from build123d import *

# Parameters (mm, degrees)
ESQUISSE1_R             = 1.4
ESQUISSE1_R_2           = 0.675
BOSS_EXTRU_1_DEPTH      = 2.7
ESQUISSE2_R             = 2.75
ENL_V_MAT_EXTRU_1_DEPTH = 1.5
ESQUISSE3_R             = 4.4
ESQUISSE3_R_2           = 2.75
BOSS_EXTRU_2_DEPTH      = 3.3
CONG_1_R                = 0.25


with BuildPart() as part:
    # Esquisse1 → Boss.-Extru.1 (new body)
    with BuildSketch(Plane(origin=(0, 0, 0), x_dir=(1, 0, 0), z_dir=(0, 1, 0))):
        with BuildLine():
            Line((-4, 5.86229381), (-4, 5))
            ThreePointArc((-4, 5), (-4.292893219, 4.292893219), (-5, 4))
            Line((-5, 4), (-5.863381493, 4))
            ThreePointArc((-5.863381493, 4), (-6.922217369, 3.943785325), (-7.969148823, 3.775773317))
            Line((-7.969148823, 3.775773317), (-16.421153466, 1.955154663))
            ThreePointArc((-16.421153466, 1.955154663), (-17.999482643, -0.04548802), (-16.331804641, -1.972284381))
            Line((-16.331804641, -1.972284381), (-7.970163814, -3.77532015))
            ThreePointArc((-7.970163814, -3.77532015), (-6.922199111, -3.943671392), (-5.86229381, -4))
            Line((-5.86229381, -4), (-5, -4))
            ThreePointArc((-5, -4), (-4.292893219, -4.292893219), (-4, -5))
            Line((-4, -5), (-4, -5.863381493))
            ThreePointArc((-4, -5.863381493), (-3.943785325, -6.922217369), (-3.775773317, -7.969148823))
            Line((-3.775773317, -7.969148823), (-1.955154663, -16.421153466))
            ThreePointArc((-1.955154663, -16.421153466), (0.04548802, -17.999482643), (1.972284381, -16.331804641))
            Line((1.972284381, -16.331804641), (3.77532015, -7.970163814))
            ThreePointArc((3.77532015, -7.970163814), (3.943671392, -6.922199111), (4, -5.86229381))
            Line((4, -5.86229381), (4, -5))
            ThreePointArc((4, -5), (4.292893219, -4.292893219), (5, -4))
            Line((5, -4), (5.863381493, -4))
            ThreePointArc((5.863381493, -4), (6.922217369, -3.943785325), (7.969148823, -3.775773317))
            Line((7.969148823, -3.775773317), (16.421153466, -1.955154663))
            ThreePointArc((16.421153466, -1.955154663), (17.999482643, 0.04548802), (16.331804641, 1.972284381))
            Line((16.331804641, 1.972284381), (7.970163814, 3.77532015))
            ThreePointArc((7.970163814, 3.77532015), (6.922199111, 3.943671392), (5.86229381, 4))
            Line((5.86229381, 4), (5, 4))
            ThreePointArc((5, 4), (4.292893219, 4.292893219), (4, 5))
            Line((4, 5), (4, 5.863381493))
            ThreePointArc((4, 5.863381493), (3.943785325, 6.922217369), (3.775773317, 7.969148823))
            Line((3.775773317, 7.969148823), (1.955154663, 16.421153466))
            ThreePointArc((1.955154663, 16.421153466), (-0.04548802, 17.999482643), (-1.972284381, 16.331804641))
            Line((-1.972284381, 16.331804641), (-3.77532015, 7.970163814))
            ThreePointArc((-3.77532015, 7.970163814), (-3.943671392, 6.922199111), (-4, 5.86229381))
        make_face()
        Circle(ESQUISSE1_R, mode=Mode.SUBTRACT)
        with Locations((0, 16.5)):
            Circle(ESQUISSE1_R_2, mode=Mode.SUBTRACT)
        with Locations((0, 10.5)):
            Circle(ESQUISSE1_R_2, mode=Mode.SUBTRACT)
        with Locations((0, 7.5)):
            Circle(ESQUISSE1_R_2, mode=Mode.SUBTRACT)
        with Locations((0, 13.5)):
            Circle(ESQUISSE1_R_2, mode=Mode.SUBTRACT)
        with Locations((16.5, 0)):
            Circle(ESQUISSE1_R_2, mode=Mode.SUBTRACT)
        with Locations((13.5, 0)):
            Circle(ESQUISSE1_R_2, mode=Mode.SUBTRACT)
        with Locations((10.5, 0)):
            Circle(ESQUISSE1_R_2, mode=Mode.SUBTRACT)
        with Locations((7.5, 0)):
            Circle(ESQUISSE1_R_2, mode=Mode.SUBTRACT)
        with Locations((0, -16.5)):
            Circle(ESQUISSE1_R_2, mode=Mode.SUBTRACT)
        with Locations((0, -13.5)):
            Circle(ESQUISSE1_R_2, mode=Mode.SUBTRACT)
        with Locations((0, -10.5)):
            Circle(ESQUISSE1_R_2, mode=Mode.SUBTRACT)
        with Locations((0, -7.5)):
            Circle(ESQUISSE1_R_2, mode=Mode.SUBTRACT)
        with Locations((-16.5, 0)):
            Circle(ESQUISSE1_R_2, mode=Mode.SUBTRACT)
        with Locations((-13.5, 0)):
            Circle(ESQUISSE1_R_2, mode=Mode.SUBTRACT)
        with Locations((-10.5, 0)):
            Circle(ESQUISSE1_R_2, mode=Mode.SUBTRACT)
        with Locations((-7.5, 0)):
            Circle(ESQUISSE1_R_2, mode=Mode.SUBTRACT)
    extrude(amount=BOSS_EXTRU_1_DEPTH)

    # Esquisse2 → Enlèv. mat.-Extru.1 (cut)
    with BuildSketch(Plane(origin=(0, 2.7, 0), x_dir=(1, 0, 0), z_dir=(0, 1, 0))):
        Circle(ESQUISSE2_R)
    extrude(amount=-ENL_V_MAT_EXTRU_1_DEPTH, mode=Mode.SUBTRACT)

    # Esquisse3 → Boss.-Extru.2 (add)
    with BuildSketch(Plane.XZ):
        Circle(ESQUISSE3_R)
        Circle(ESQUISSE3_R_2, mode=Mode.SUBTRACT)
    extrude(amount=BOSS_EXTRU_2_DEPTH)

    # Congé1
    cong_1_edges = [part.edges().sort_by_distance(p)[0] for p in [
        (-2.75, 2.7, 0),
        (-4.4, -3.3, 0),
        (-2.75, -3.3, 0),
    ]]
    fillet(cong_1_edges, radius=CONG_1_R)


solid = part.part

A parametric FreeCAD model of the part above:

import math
import FreeCAD as App
import Part
import Sketcher

V = App.Vector


def edges_at(feature, points):
    """Names of the edges that pass closest to the given points."""
    edges = feature.Shape.Edges
    near = lambda p: min(range(len(edges)), key=lambda i: edges[i].distToShape(Part.Vertex(*p))[0])
    return sorted({f"Edge{near(p) + 1}" for p in points})

doc = App.newDocument("Part")
body = doc.addObject("PartDesign::Body", "Body")

sketch1 = doc.addObject("Sketcher::SketchObject", "Sketch")
body.addObject(sketch1)
sketch1.AttachmentSupport = (doc.XZ_Plane, [""])
sketch1.MapMode = "FlatFace"
sketch1.addGeometry([
    Part.LineSegment(V(-4, -5.862294, 0), V(-4, -5, 0)),
    Part.ArcOfCircle(Part.Circle(V(-5, -5, 0), V(0, 0, 1), 1), math.radians(0), math.radians(90)),
    Part.LineSegment(V(-5, -4, 0), V(-5.863381, -4, 0)),
    Part.ArcOfCircle(Part.Circle(V(-5.863381, 6, 0), V(0, 0, 1), 10), math.radians(-102.156152), math.radians(-90)),
    Part.LineSegment(V(-7.969149, -3.775773, 0), V(-16.421153, -1.955155, 0)),
    Part.ArcOfCircle(Part.Circle(V(-16, 0, 0), V(0, 0, 1), 2), math.radians(99.549656), math.radians(257.843848)),
    Part.LineSegment(V(-16.331805, 1.972284, 0), V(-7.970164, 3.77532, 0)),
    Part.ArcOfCircle(Part.Circle(V(-5.862294, -6, 0), V(0, 0, 1), 10), math.radians(90), math.radians(102.168476)),
    Part.LineSegment(V(-5.862294, 4, 0), V(-5, 4, 0)),
    Part.ArcOfCircle(Part.Circle(V(-5, 5, 0), V(0, 0, 1), 1), math.radians(-90), math.radians(0)),
    Part.LineSegment(V(-4, 5, 0), V(-4, 5.863381, 0)),
    Part.ArcOfCircle(Part.Circle(V(6, 5.863381, 0), V(0, 0, 1), 10), math.radians(167.843848), math.radians(180)),
    Part.LineSegment(V(-3.775773, 7.969149, 0), V(-1.955155, 16.421153, 0)),
    Part.ArcOfCircle(Part.Circle(V(0, 16, 0), V(0, 0, 1), 2), math.radians(9.549656), math.radians(167.843848)),
    Part.LineSegment(V(1.972284, 16.331805, 0), V(3.77532, 7.970164, 0)),
    Part.ArcOfCircle(Part.Circle(V(-6, 5.862294, 0), V(0, 0, 1), 10), math.radians(0), math.radians(12.168476)),
    Part.LineSegment(V(4, 5.862294, 0), V(4, 5, 0)),
    Part.ArcOfCircle(Part.Circle(V(5, 5, 0), V(0, 0, 1), 1), math.radians(-180), math.radians(-90)),
    Part.LineSegment(V(5, 4, 0), V(5.863381, 4, 0)),
    Part.ArcOfCircle(Part.Circle(V(5.863381, -6, 0), V(0, 0, 1), 10), math.radians(77.843848), math.radians(90)),
    Part.LineSegment(V(7.969149, 3.775773, 0), V(16.421153, 1.955155, 0)),
    Part.ArcOfCircle(Part.Circle(V(16, 0, 0), V(0, 0, 1), 2), math.radians(-80.450344), math.radians(77.843848)),
    Part.LineSegment(V(16.331805, -1.972284, 0), V(7.970164, -3.77532, 0)),
    Part.ArcOfCircle(Part.Circle(V(5.862294, 6, 0), V(0, 0, 1), 10), math.radians(-90), math.radians(-77.831524)),
    Part.LineSegment(V(5.862294, -4, 0), V(5, -4, 0)),
    Part.ArcOfCircle(Part.Circle(V(5, -5, 0), V(0, 0, 1), 1), math.radians(90), math.radians(180)),
    Part.LineSegment(V(4, -5, 0), V(4, -5.863381, 0)),
    Part.ArcOfCircle(Part.Circle(V(-6, -5.863381, 0), V(0, 0, 1), 10), math.radians(-12.156152), math.radians(0)),
    Part.LineSegment(V(3.775773, -7.969149, 0), V(1.955155, -16.421153, 0)),
    Part.ArcOfCircle(Part.Circle(V(0, -16, 0), V(0, 0, 1), 2), math.radians(-170.450344), math.radians(-12.156152)),
    Part.LineSegment(V(-1.972284, -16.331805, 0), V(-3.77532, -7.970164, 0)),
    Part.ArcOfCircle(Part.Circle(V(6, -5.862294, 0), V(0, 0, 1), 10), math.radians(180), math.radians(192.168476)),
    Part.Circle(V(0, 16.5, 0), V(0, 0, 1), 0.675),
    Part.Circle(V(0, 13.5, 0), V(0, 0, 1), 0.675),
    Part.Circle(V(0, 10.5, 0), V(0, 0, 1), 0.675),
    Part.Circle(V(0, 7.5, 0), V(0, 0, 1), 0.675),
    Part.Circle(V(-16.5, 0, 0), V(0, 0, 1), 0.675),
    Part.Circle(V(-13.5, 0, 0), V(0, 0, 1), 0.675),
    Part.Circle(V(-10.5, 0, 0), V(0, 0, 1), 0.675),
    Part.Circle(V(-7.5, 0, 0), V(0, 0, 1), 0.675),
    Part.Circle(V(0, 0, 0), V(0, 0, 1), 1.4),
    Part.Circle(V(7.5, 0, 0), V(0, 0, 1), 0.675),
    Part.Circle(V(0, -7.5, 0), V(0, 0, 1), 0.675),
    Part.Circle(V(10.5, 0, 0), V(0, 0, 1), 0.675),
    Part.Circle(V(13.5, 0, 0), V(0, 0, 1), 0.675),
    Part.Circle(V(16.5, 0, 0), V(0, 0, 1), 0.675),
    Part.Circle(V(0, -10.5, 0), V(0, 0, 1), 0.675),
    Part.Circle(V(0, -13.5, 0), V(0, 0, 1), 0.675),
    Part.Circle(V(0, -16.5, 0), V(0, 0, 1), 0.675),
], False)
sketch1.addConstraint([
    Sketcher.Constraint("Tangent", 0, 2, 1, 1),
    Sketcher.Constraint("Tangent", 1, 2, 2, 1),
    Sketcher.Constraint("Tangent", 2, 2, 3, 2),
    Sketcher.Constraint("Tangent", 3, 1, 4, 1),
    Sketcher.Constraint("Tangent", 4, 2, 5, 2),
    Sketcher.Constraint("Coincident", 5, 1, 6, 1),
    Sketcher.Constraint("Tangent", 6, 2, 7, 2),
    Sketcher.Constraint("Tangent", 7, 1, 8, 1),
    Sketcher.Constraint("Tangent", 8, 2, 9, 1),
    Sketcher.Constraint("Tangent", 9, 2, 10, 1),
    Sketcher.Constraint("Tangent", 10, 2, 11, 2),
    Sketcher.Constraint("Tangent", 11, 1, 12, 1),
    Sketcher.Constraint("Tangent", 12, 2, 13, 2),
    Sketcher.Constraint("Coincident", 13, 1, 14, 1),
    Sketcher.Constraint("Tangent", 14, 2, 15, 2),
    Sketcher.Constraint("Tangent", 15, 1, 16, 1),
    Sketcher.Constraint("Tangent", 16, 2, 17, 1),
    Sketcher.Constraint("Tangent", 17, 2, 18, 1),
    Sketcher.Constraint("Tangent", 18, 2, 19, 2),
    Sketcher.Constraint("Tangent", 19, 1, 20, 1),
    Sketcher.Constraint("Tangent", 20, 2, 21, 2),
    Sketcher.Constraint("Coincident", 21, 1, 22, 1),
    Sketcher.Constraint("Tangent", 22, 2, 23, 2),
    Sketcher.Constraint("Tangent", 23, 1, 24, 1),
    Sketcher.Constraint("Tangent", 24, 2, 25, 1),
    Sketcher.Constraint("Tangent", 25, 2, 26, 1),
    Sketcher.Constraint("Tangent", 26, 2, 27, 2),
    Sketcher.Constraint("Tangent", 27, 1, 28, 1),
    Sketcher.Constraint("Tangent", 28, 2, 29, 2),
    Sketcher.Constraint("Coincident", 29, 1, 30, 1),
    Sketcher.Constraint("Tangent", 30, 2, 31, 2),
    Sketcher.Constraint("Tangent", 31, 1, 0, 1),
    Sketcher.Constraint("Vertical", 0),
    Sketcher.Constraint("Horizontal", 2),
    Sketcher.Constraint("Horizontal", 8),
    Sketcher.Constraint("Vertical", 10),
    Sketcher.Constraint("Vertical", 16),
    Sketcher.Constraint("Horizontal", 18),
    Sketcher.Constraint("Horizontal", 24),
    Sketcher.Constraint("Vertical", 26),
    Sketcher.Constraint("Coincident", 40, 3, -1, 1),
    Sketcher.Constraint("Equal", 3, 7),
    Sketcher.Constraint("Equal", 1, 9),
    Sketcher.Constraint("Equal", 7, 11),
    Sketcher.Constraint("Equal", 5, 13),
    Sketcher.Constraint("Equal", 11, 15),
    Sketcher.Constraint("Equal", 9, 17),
    Sketcher.Constraint("Equal", 15, 19),
    Sketcher.Constraint("Equal", 13, 21),
    Sketcher.Constraint("Equal", 19, 23),
    Sketcher.Constraint("Equal", 17, 25),
    Sketcher.Constraint("Equal", 23, 27),
    Sketcher.Constraint("Equal", 21, 29),
    Sketcher.Constraint("Equal", 27, 31),
    Sketcher.Constraint("Equal", 32, 33),
    Sketcher.Constraint("Equal", 33, 34),
    Sketcher.Constraint("Equal", 34, 35),
    Sketcher.Constraint("Equal", 35, 36),
    Sketcher.Constraint("Equal", 36, 37),
    Sketcher.Constraint("Equal", 37, 38),
    Sketcher.Constraint("Equal", 38, 39),
    Sketcher.Constraint("Equal", 39, 41),
    Sketcher.Constraint("Equal", 41, 42),
    Sketcher.Constraint("Equal", 42, 43),
    Sketcher.Constraint("Equal", 43, 44),
    Sketcher.Constraint("Equal", 44, 45),
    Sketcher.Constraint("Equal", 45, 46),
    Sketcher.Constraint("Equal", 46, 47),
    Sketcher.Constraint("Equal", 47, 48),
    Sketcher.Constraint("Symmetric", 1, 3, 17, 3, -1, 1),
    Sketcher.Constraint("Symmetric", 5, 3, 21, 3, -1, 1),
    Sketcher.Constraint("Symmetric", 7, 3, 23, 3, -1, 1),
    Sketcher.Constraint("Symmetric", 11, 3, 27, 3, -1, 1),
    Sketcher.Constraint("Symmetric", 13, 3, 29, 3, -1, 1),
    Sketcher.Constraint("Symmetric", 39, 3, 41, 3, -1, 1),
    Sketcher.Constraint("Symmetric", 35, 3, 42, 3, -1, 1),
    Sketcher.Constraint("Symmetric", 38, 3, 43, 3, -1, 1),
    Sketcher.Constraint("Symmetric", 37, 3, 44, 3, -1, 1),
    Sketcher.Constraint("Symmetric", 36, 3, 45, 3, -1, 1),
    Sketcher.Constraint("Symmetric", 34, 3, 46, 3, -1, 1),
    Sketcher.Constraint("Symmetric", 33, 3, 47, 3, -1, 1),
    Sketcher.Constraint("Symmetric", 32, 3, 48, 3, -1, 1),
    Sketcher.Constraint("Symmetric", 14, 2, 30, 2, -1, 1),
    Sketcher.Constraint("Symmetric", 9, 3, 17, 3, -2),
    Sketcher.Constraint("PointOnObject", 5, 3, -1),
    Sketcher.Constraint("PointOnObject", 13, 3, -2),
    Sketcher.Constraint("PointOnObject", 32, 3, -2),
    Sketcher.Constraint("PointOnObject", 33, 3, -2),
    Sketcher.Constraint("PointOnObject", 34, 3, -2),
    Sketcher.Constraint("PointOnObject", 35, 3, -2),
    Sketcher.Constraint("PointOnObject", 36, 3, -1),
    Sketcher.Constraint("PointOnObject", 37, 3, -1),
    Sketcher.Constraint("PointOnObject", 38, 3, -1),
    Sketcher.Constraint("PointOnObject", 39, 3, -1),
    Sketcher.Constraint("Perpendicular", 4, 12),
    Sketcher.Constraint("Perpendicular", 6, 14),
    Sketcher.Constraint("Perpendicular", 12, 20),
    Sketcher.Constraint("Perpendicular", 14, 22),
    Sketcher.Constraint("Equal", 24, 0),
    Sketcher.Constraint("Equal", 18, 10),
    Sketcher.Constraint("Equal", 4, 12),
    Sketcher.Constraint("Radius", 1, 1.0),
    Sketcher.Constraint("Radius", 3, 10.0),
    Sketcher.Constraint("Radius", 5, 2.0),
    Sketcher.Constraint("Diameter", 40, 2.8),
    Sketcher.Constraint("Diameter", 32, 1.35),
    Sketcher.Constraint("DistanceX", 1, 3, -1, 1, 5.0),
    Sketcher.Constraint("DistanceX", 5, 3, -1, 1, 16.0),
    Sketcher.Constraint("DistanceY", -1, 1, 32, 3, 16.5),
    Sketcher.Constraint("DistanceY", -1, 1, 33, 3, 13.5),
    Sketcher.Constraint("DistanceY", -1, 1, 34, 3, 10.5),
    Sketcher.Constraint("DistanceY", -1, 1, 35, 3, 7.5),
    Sketcher.Constraint("DistanceX", 36, 3, -1, 1, 16.5),
    Sketcher.Constraint("DistanceX", 37, 3, -1, 1, 13.5),
    Sketcher.Constraint("DistanceX", 38, 3, -1, 1, 10.5),
    Sketcher.Constraint("DistanceX", 39, 3, -1, 1, 7.5),
    Sketcher.Constraint("DistanceX", 2, 2, 2, 1, 0.863381),
    Sketcher.Constraint("Distance", 6, 8.553828),
    Sketcher.Constraint("DistanceX", 8, 1, 8, 2, 0.862294),
])
pad1 = doc.addObject("PartDesign::Pad", "Pad")
body.addObject(pad1)
pad1.Profile = sketch1
pad1.Length = 2.7
pad1.Reversed = True

sketch2 = doc.addObject("Sketcher::SketchObject", "Sketch001")
body.addObject(sketch2)
sketch2.AttachmentSupport = (doc.XZ_Plane, [""])
sketch2.MapMode = "FlatFace"
sketch2.AttachmentOffset = App.Placement(V(0, 0, -2.7), App.Rotation())
sketch2.addGeometry(Part.Circle(V(0, 0, 0), V(0, 0, 1), 2.75), False)
sketch2.addConstraint([
    Sketcher.Constraint("Coincident", 0, 3, -1, 1),
    Sketcher.Constraint("Diameter", 0, 5.5),
])
pocket1 = doc.addObject("PartDesign::Pocket", "Pocket")
body.addObject(pocket1)
pocket1.Profile = sketch2
pocket1.Length = 1.5
pocket1.Reversed = True

sketch3 = doc.addObject("Sketcher::SketchObject", "Sketch002")
body.addObject(sketch3)
sketch3.AttachmentSupport = (doc.XZ_Plane, [""])
sketch3.MapMode = "FlatFace"
sketch3.addGeometry([
    Part.Circle(V(0, 0, 0), V(0, 0, 1), 4.4),
    Part.Circle(V(0, 0, 0), V(0, 0, 1), 2.75),
], False)
sketch3.addConstraint([
    Sketcher.Constraint("Coincident", 0, 3, -1, 1),
    Sketcher.Constraint("Coincident", 1, 3, -1, 1),
    Sketcher.Constraint("Diameter", 0, 8.8),
    Sketcher.Constraint("Diameter", 1, 5.5),
])
pad2 = doc.addObject("PartDesign::Pad", "Pad001")
body.addObject(pad2)
pad2.Profile = sketch3
pad2.Length = 3.3
doc.recompute()

fillet = doc.addObject("PartDesign::Fillet", "Fillet")
body.addObject(fillet)
fillet.Base = (pad2, edges_at(pad2, [(-2.75, 2.7, 0), (-4.4, -3.3, 0), (-2.75, -3.3, 0)]))
fillet.Radius = 0.25

doc.recompute()
